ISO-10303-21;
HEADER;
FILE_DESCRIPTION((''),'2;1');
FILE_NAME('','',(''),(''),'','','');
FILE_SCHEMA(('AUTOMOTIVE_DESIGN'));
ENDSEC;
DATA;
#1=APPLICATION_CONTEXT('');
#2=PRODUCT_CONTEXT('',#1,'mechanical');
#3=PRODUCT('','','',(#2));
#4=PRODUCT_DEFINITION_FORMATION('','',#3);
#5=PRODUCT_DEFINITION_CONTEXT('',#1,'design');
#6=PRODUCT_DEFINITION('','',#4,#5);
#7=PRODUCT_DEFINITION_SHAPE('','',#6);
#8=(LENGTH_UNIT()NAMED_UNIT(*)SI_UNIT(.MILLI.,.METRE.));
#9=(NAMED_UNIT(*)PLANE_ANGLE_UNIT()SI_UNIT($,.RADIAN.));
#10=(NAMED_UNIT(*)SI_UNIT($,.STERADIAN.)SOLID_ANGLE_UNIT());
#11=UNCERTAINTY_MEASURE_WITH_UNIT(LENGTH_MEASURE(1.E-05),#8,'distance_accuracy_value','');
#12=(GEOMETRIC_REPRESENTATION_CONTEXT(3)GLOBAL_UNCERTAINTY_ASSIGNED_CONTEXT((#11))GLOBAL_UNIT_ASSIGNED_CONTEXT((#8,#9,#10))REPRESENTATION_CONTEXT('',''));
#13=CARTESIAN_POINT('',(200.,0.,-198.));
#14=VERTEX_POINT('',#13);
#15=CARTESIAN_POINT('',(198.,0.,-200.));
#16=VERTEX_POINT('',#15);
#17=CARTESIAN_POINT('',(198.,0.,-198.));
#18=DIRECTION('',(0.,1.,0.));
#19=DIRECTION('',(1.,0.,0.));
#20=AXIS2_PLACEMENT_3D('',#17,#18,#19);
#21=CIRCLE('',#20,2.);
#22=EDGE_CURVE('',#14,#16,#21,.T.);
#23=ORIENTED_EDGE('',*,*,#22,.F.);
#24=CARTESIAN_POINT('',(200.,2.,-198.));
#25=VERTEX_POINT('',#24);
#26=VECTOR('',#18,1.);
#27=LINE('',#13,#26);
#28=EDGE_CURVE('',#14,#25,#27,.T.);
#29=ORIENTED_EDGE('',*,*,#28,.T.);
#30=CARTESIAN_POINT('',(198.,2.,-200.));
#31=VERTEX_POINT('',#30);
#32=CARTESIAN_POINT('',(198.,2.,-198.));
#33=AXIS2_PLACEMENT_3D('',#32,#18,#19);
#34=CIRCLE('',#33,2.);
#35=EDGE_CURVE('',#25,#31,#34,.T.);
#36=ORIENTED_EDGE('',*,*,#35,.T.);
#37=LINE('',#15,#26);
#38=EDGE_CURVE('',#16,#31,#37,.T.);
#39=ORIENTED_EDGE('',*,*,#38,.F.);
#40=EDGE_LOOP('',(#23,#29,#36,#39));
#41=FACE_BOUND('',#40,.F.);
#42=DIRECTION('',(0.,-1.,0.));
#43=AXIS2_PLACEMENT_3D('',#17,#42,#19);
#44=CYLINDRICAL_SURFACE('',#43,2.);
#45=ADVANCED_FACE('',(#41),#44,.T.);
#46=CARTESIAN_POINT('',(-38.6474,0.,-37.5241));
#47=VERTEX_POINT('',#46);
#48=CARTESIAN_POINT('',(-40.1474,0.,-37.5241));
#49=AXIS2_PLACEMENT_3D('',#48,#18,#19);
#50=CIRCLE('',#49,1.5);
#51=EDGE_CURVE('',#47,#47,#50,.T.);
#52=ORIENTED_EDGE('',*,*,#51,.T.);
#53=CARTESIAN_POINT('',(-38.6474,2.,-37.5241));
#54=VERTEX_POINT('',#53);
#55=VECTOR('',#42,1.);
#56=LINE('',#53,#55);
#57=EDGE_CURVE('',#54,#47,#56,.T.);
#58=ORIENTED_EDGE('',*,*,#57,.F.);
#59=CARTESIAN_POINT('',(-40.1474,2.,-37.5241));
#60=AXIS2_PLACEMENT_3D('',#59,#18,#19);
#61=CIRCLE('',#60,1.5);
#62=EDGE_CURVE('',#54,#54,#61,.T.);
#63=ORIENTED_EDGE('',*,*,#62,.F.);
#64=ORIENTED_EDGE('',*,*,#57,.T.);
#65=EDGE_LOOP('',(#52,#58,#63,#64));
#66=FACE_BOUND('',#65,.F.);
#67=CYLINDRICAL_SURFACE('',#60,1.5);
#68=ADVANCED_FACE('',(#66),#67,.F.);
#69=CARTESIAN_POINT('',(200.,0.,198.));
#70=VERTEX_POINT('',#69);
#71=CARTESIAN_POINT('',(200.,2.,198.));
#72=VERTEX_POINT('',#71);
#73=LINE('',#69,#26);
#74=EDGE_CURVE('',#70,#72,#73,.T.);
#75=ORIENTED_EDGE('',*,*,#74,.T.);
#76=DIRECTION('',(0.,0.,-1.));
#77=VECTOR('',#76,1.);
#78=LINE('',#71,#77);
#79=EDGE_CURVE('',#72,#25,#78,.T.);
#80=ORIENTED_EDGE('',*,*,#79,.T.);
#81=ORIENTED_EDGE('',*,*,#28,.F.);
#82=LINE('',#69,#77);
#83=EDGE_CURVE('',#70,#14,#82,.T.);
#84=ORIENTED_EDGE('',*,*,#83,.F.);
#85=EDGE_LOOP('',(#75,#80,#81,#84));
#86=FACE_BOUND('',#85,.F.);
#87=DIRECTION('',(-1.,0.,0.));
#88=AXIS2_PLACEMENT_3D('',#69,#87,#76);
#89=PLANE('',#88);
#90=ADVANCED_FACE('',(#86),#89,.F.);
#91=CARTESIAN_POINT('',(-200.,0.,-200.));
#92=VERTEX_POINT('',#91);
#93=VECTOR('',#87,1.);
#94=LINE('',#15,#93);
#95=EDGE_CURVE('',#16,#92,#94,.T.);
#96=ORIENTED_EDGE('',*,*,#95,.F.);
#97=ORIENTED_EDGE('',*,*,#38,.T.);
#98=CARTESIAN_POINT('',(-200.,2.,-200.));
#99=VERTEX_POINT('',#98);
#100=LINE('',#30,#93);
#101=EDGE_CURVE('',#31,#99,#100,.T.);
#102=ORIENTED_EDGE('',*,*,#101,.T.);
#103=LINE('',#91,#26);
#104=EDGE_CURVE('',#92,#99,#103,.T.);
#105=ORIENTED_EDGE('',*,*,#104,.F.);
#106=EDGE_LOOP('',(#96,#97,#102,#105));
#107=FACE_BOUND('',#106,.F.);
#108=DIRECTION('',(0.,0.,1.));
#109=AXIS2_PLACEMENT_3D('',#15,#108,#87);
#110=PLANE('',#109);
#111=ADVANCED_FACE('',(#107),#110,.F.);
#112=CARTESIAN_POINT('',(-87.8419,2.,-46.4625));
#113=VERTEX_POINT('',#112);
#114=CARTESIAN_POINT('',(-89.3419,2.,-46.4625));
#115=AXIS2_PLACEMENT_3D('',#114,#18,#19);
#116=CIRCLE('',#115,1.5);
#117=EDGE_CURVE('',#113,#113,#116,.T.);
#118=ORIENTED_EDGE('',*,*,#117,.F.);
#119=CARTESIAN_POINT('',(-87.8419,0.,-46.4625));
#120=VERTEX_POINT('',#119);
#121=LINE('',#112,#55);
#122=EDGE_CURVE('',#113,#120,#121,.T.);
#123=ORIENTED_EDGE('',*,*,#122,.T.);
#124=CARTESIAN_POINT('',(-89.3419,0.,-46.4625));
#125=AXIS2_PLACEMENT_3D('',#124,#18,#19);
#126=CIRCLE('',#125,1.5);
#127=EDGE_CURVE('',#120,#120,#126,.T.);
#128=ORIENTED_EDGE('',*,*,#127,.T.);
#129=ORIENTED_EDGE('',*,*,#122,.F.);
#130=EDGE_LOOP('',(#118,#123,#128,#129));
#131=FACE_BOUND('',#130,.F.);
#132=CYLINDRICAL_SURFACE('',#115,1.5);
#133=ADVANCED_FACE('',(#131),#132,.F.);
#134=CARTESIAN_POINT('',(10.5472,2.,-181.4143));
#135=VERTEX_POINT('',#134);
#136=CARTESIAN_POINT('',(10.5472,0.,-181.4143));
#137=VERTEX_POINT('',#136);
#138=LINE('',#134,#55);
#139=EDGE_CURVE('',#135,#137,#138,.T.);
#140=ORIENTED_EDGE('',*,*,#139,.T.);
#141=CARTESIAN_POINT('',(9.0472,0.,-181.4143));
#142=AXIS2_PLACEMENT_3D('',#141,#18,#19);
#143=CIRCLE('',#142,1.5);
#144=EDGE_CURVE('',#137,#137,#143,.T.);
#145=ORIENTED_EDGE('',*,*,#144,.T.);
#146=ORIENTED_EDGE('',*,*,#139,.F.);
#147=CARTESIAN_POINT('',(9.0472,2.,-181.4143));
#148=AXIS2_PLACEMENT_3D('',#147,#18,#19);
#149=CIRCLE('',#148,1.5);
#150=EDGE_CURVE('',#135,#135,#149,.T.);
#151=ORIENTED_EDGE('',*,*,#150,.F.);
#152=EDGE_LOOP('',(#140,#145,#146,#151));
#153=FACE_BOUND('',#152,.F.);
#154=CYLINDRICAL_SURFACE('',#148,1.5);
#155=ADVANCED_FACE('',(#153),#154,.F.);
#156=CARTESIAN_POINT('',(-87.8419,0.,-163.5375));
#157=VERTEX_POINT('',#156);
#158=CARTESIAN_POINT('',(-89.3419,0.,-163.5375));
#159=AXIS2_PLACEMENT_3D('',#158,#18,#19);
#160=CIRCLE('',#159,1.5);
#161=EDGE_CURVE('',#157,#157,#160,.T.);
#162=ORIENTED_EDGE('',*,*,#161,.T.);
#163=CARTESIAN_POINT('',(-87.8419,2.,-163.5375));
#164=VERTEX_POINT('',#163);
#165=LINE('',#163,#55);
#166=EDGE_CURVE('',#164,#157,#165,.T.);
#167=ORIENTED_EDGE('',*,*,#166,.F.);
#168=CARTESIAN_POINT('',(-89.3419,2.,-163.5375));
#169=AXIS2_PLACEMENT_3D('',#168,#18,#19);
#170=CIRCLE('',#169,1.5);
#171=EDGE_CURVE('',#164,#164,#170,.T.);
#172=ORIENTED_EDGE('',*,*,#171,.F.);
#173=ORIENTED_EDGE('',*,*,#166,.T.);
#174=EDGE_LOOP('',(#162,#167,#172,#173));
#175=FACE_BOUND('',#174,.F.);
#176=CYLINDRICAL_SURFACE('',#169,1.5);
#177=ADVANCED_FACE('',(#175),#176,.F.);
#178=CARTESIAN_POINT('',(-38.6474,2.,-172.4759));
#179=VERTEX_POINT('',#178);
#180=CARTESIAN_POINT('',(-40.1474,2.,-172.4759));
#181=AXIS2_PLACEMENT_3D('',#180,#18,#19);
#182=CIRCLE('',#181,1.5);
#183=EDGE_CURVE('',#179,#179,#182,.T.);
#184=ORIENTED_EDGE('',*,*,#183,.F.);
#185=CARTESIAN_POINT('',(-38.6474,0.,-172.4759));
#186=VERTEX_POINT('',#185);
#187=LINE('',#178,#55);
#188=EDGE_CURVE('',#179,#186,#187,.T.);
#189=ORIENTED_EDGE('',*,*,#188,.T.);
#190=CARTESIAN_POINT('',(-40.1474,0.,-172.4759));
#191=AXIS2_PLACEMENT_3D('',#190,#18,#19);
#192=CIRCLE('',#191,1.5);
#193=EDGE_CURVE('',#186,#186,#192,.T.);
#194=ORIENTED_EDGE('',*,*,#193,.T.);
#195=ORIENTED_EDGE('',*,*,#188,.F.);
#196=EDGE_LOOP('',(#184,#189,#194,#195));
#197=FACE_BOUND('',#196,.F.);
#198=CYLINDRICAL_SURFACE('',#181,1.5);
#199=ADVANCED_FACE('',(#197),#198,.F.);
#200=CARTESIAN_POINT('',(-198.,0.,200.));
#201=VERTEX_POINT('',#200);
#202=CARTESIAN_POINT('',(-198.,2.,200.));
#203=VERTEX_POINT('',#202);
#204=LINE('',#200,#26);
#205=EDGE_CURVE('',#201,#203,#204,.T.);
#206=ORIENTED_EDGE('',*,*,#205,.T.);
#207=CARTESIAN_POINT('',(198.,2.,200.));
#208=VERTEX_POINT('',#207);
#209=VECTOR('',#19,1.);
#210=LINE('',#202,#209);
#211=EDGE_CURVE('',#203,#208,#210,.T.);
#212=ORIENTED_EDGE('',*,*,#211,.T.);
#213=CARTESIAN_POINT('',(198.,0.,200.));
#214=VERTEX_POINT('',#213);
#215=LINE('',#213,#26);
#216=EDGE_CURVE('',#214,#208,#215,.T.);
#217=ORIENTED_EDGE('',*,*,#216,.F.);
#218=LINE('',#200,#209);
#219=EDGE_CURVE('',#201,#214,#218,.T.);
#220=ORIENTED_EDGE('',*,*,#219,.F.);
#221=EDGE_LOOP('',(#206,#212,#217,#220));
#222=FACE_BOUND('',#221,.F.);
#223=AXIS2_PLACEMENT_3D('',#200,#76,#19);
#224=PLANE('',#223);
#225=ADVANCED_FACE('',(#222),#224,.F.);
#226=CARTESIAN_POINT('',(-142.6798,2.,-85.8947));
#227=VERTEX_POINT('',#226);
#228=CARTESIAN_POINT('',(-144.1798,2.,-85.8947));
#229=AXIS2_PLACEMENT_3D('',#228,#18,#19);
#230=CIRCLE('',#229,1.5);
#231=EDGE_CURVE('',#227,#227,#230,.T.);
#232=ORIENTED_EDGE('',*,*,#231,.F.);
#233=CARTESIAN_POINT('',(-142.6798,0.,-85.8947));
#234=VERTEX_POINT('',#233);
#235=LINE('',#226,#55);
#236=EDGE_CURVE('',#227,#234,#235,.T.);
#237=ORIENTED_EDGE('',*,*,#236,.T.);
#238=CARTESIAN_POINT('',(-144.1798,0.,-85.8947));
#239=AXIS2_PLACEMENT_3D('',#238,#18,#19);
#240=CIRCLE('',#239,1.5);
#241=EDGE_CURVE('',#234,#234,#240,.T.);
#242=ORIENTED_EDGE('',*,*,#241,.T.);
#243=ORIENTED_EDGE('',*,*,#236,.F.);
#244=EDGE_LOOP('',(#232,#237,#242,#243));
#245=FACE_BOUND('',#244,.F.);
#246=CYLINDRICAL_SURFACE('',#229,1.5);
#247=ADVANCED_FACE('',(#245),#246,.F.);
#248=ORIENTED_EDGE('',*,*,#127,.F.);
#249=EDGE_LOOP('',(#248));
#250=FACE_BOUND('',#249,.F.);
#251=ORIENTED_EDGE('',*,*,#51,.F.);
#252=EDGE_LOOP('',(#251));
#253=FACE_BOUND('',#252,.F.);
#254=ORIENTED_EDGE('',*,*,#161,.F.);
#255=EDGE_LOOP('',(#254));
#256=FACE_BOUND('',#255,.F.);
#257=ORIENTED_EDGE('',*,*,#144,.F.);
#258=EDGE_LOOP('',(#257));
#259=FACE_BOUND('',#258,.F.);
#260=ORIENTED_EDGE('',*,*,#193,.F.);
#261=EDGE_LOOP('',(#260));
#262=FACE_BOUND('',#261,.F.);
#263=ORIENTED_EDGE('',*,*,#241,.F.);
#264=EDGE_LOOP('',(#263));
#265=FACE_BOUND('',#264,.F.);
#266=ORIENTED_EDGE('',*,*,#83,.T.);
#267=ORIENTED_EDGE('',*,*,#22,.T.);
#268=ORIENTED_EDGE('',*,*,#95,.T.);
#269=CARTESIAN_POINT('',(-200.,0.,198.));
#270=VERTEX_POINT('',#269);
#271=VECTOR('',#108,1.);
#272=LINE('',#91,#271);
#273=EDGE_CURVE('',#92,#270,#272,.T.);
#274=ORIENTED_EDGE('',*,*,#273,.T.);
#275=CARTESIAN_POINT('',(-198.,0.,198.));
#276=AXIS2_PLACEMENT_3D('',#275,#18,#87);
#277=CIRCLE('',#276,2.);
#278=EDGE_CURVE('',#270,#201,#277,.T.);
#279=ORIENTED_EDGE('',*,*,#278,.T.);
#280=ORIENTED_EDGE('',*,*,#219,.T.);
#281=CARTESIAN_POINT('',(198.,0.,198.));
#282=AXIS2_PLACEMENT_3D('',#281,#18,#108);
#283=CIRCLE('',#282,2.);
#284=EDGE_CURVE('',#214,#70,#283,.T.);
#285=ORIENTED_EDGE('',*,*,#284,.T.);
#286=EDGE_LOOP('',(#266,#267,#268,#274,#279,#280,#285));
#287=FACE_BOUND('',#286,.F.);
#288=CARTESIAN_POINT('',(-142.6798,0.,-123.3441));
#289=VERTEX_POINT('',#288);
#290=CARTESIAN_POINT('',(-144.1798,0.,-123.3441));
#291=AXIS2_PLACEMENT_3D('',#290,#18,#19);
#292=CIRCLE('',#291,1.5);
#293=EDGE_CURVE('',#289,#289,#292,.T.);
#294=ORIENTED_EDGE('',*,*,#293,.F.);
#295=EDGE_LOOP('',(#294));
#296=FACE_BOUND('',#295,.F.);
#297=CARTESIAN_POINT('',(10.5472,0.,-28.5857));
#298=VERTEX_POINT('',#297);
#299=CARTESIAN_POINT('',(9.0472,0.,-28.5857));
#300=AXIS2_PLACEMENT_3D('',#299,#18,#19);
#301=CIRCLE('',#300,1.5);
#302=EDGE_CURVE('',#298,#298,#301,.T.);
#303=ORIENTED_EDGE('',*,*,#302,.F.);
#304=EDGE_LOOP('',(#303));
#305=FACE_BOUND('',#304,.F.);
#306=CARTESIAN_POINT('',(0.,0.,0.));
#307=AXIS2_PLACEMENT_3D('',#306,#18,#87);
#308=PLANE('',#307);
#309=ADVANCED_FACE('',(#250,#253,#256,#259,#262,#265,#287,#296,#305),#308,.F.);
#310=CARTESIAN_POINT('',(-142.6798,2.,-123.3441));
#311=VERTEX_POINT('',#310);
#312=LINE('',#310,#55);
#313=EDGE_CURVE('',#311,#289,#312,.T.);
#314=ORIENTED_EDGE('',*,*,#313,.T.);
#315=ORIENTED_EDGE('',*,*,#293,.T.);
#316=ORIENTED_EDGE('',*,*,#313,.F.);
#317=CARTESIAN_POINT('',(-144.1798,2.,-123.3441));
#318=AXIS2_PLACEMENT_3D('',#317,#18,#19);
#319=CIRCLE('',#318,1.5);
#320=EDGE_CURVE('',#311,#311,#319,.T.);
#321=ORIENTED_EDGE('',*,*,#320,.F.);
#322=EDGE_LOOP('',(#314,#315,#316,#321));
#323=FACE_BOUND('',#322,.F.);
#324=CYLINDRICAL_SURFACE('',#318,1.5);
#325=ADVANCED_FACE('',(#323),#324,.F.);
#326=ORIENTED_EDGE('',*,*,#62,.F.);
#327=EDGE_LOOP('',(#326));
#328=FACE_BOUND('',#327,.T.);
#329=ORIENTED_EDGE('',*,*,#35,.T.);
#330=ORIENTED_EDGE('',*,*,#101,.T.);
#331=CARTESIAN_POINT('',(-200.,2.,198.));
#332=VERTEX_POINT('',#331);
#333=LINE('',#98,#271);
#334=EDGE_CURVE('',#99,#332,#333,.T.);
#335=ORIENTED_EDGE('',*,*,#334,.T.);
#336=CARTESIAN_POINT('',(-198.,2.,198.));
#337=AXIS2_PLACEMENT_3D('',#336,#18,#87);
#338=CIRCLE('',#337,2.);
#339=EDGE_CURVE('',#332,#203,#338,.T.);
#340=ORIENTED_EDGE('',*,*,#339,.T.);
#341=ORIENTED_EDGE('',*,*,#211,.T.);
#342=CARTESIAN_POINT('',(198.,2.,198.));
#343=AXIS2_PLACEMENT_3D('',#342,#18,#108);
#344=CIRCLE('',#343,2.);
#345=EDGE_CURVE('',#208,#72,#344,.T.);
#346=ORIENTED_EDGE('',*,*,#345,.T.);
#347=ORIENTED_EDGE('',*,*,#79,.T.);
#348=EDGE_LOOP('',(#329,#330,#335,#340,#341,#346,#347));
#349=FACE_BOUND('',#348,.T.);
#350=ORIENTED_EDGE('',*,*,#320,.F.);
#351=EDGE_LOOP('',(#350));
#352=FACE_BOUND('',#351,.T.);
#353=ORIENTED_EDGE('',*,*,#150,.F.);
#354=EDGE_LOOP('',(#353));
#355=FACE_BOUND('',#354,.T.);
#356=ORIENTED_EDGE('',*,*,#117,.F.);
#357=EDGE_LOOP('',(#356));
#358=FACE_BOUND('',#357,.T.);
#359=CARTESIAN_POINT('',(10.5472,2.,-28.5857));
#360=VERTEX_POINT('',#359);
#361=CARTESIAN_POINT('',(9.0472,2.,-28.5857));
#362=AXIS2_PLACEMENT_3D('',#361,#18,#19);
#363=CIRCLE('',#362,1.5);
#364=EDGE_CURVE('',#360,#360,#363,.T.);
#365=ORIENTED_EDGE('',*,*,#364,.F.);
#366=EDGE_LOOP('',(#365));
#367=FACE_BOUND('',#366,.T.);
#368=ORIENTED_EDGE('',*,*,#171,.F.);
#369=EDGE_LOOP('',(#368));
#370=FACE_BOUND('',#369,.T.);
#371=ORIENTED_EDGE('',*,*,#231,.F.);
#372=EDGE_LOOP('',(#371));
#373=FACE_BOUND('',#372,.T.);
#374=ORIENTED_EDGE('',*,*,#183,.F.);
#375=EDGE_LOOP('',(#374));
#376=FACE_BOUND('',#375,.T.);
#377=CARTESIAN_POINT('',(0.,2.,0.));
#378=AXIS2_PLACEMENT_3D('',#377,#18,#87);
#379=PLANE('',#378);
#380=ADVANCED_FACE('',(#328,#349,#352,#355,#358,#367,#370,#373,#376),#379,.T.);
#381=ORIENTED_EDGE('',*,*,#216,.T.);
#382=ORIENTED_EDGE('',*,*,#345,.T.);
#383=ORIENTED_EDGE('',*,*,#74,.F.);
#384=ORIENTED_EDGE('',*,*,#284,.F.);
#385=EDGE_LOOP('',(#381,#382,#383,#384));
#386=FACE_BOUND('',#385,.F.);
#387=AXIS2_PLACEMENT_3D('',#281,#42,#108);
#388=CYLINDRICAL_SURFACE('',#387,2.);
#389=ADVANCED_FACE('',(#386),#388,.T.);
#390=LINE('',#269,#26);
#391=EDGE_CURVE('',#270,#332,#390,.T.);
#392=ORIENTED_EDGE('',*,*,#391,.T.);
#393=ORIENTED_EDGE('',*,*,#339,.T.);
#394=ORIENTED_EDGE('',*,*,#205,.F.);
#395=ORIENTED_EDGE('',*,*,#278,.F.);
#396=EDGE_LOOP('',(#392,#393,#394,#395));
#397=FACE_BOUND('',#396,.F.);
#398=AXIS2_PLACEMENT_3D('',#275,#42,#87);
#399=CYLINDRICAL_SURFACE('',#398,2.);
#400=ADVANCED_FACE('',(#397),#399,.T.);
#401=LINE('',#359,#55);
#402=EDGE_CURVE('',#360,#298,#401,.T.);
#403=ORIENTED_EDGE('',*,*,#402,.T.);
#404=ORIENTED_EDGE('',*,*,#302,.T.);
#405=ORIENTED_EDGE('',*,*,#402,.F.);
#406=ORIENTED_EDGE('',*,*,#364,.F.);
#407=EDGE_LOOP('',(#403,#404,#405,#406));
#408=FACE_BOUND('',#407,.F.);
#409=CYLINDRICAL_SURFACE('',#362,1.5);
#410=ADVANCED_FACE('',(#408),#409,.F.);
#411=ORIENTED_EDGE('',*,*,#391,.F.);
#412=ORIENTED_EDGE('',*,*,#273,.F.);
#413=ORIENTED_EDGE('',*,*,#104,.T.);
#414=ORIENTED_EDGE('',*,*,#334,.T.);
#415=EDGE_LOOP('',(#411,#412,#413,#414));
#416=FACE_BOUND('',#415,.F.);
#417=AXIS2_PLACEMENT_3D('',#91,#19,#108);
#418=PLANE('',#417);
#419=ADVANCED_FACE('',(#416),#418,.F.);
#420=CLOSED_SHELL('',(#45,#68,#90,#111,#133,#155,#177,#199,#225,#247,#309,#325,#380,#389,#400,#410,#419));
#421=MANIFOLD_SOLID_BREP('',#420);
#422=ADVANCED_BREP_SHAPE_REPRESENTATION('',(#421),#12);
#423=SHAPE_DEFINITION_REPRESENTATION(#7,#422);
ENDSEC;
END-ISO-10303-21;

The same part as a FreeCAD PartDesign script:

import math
import FreeCAD as App
import Part
import Sketcher
Q = App.Units.Quantity

doc = App.newDocument("Part")
params = doc.addObject("Spreadsheet::Sheet", "Params")
for row, (alias, value) in enumerate([
    ("sketch1_radius", "2 mm"),
    ("pad1_length", "2 mm"),
    ("sketch2_diameter", "3 mm"),
], start=1):
    params.set(f"A{row}", alias)
    params.set(f"B{row}", "=" + value)
    params.setAlias(f"B{row}", alias)

body = doc.addObject("PartDesign::Body", "Body")

sketch1 = body.newObject("Sketcher::SketchObject", "Sketch")
sketch1.AttachmentSupport = (doc.getObject("XZ_Plane"), [""])
sketch1.MapMode = "FlatFace"
sketch1.addGeometry(Part.ArcOfCircle(Part.Circle(App.Vector(-198, 198, 0), App.Vector(0, 0, 1), 2), math.radians(90), math.radians(180)), False)
sketch1.addGeometry(Part.LineSegment(App.Vector(-198, 200, 0), App.Vector(198, 200, 0)), False)
sketch1.addGeometry(Part.ArcOfCircle(Part.Circle(App.Vector(198, 198, 0), App.Vector(0, 0, 1), 2), math.radians(0), math.radians(90)), False)
sketch1.addGeometry(Part.LineSegment(App.Vector(200, 198, 0), App.Vector(200, -198, 0)), False)
sketch1.addGeometry(Part.ArcOfCircle(Part.Circle(App.Vector(198, -198, 0), App.Vector(0, 0, 1), 2), math.radians(-90), math.radians(0)), False)
sketch1.addGeometry(Part.LineSegment(App.Vector(198, -200, 0), App.Vector(-200, -200, 0)), False)
sketch1.addGeometry(Part.LineSegment(App.Vector(-200, -200, 0), App.Vector(-200, 198, 0)), False)
sketch1.addConstraint(Sketcher.Constraint("Tangent", 0, 1, 1, 1))
sketch1.addConstraint(Sketcher.Constraint("Tangent", 1, 2, 2, 2))
sketch1.addConstraint(Sketcher.Constraint("Tangent", 2, 1, 3, 1))
sketch1.addConstraint(Sketcher.Constraint("Tangent", 3, 2, 4, 2))
sketch1.addConstraint(Sketcher.Constraint("Tangent", 4, 1, 5, 1))
sketch1.addConstraint(Sketcher.Constraint("Coincident", 5, 2, 6, 1))
sketch1.addConstraint(Sketcher.Constraint("Tangent", 6, 2, 0, 2))
sketch1.addConstraint(Sketcher.Constraint("Horizontal", 1))
sketch1.addConstraint(Sketcher.Constraint("Vertical", 3))
sketch1.addConstraint(Sketcher.Constraint("Horizontal", 5))
sketch1.addConstraint(Sketcher.Constraint("Vertical", 6))
sketch1.addConstraint(Sketcher.Constraint("Equal", 0, 2))
sketch1.addConstraint(Sketcher.Constraint("Equal", 2, 4))
sketch1.addConstraint(Sketcher.Constraint("Symmetric", 0, 3, 4, 3, -1, 1))
sketch1.addConstraint(Sketcher.Constraint("Equal", 1, 3))
sketch1.addConstraint(Sketcher.Constraint("Radius", 0, Q("2 mm")))
sketch1.addConstraint(Sketcher.Constraint("DistanceY", 4, 1, 1, 2, Q("400 mm")))
sketch1.setExpression("Constraints[15]", "Params.sketch1_radius")
pad1 = body.newObject("PartDesign::Pad", "Pad")
pad1.Profile = sketch1
pad1.setExpression("Length", "Params.pad1_length")
pad1.Reversed = True

sketch2 = body.newObject("Sketcher::SketchObject", "Sketch001")
sketch2.AttachmentSupport = (doc.getObject("XZ_Plane"), [""])
sketch2.MapMode = "FlatFace"
sketch2.AttachmentOffset = App.Placement(App.Vector(0, 0, -2), App.Rotation())
sketch2.addGeometry(Part.Circle(App.Vector(-89.3, -163.5, 0), App.Vector(0, 0, 1), 1.5), False)
sketch2.addGeometry(Part.Circle(App.Vector(-144.2, -123.3, 0), App.Vector(0, 0, 1), 1.5), False)
sketch2.addGeometry(Part.Circle(App.Vector(-144.2, -85.9, 0), App.Vector(0, 0, 1), 1.5), False)
sketch2.addGeometry(Part.Circle(App.Vector(-89.3, -46.5, 0), App.Vector(0, 0, 1), 1.5), False)
sketch2.addGeometry(Part.Circle(App.Vector(-40.1, -37.5, 0), App.Vector(0, 0, 1), 1.5), False)
sketch2.addGeometry(Part.Circle(App.Vector(9, -28.6, 0), App.Vector(0, 0, 1), 1.5), False)
sketch2.addGeometry(Part.Circle(App.Vector(-40.1, -172.5, 0), App.Vector(0, 0, 1), 1.5), False)
sketch2.addGeometry(Part.Circle(App.Vector(9, -181.4, 0), App.Vector(0, 0, 1), 1.5), False)
sketch2.addConstraint(Sketcher.Constraint("Equal", 0, 1))
sketch2.addConstraint(Sketcher.Constraint("Equal", 1, 2))
sketch2.addConstraint(Sketcher.Constraint("Equal", 2, 3))
sketch2.addConstraint(Sketcher.Constraint("Equal", 3, 4))
sketch2.addConstraint(Sketcher.Constraint("Equal", 4, 5))
sketch2.addConstraint(Sketcher.Constraint("Equal", 5, 6))
sketch2.addConstraint(Sketcher.Constraint("Equal", 6, 7))
sketch2.addConstraint(Sketcher.Constraint("Vertical", 1, 3, 2, 3))
sketch2.addConstraint(Sketcher.Constraint("Vertical", 0, 3, 3, 3))
sketch2.addConstraint(Sketcher.Constraint("Vertical", 4, 3, 6, 3))
sketch2.addConstraint(Sketcher.Constraint("Vertical", 5, 3, 7, 3))
sketch2.addConstraint(Sketcher.Constraint("Diameter", 0, Q("3 mm")))
sketch2.addConstraint(Sketcher.Constraint("DistanceY", 1, 3, 4, 3, Q("85.82 mm")))
sketch2.addConstraint(Sketcher.Constraint("DistanceX", 0, 3, -1, 1, Q("89.342 mm")))
sketch2.addConstraint(Sketcher.Constraint("DistanceY", 1, 3, -1, 1, Q("123.344 mm")))
sketch2.addConstraint(Sketcher.Constraint("DistanceY", 6, 3, -1, 1, Q("172.476 mm")))
sketch2.addConstraint(Sketcher.Constraint("DistanceX", 1, 3, 0, 3, Q("54.838 mm")))
sketch2.addConstraint(Sketcher.Constraint("DistanceY", 0, 3, 3, 3, Q("117.075 mm")))
sketch2.addConstraint(Sketcher.Constraint("DistanceX", 3, 3, 5, 3, Q("98.389 mm")))
sketch2.addConstraint(Sketcher.Constraint("DistanceY", 2, 3, 5, 3, Q("57.309 mm")))
sketch2.addConstraint(Sketcher.Constraint("DistanceY", 0, 3, -1, 1, Q("163.5375 mm")))
sketch2.addConstraint(Sketcher.Constraint("DistanceY", 2, 3, -1, 1, Q("85.8947 mm")))
sketch2.addConstraint(Sketcher.Constraint("DistanceX", 4, 3, -1, 1, Q("40.1474 mm")))
sketch2.addConstraint(Sketcher.Constraint("DistanceY", 7, 3, -1, 1, Q("181.4143 mm")))
sketch2.setExpression("Constraints[11]", "Params.sketch2_diameter")
pocket1 = body.newObject("PartDesign::Pocket", "Pocket")
pocket1.Profile = sketch2
pocket1.Type = "ThroughAll"
pocket1.Reversed = True

doc.recompute()
